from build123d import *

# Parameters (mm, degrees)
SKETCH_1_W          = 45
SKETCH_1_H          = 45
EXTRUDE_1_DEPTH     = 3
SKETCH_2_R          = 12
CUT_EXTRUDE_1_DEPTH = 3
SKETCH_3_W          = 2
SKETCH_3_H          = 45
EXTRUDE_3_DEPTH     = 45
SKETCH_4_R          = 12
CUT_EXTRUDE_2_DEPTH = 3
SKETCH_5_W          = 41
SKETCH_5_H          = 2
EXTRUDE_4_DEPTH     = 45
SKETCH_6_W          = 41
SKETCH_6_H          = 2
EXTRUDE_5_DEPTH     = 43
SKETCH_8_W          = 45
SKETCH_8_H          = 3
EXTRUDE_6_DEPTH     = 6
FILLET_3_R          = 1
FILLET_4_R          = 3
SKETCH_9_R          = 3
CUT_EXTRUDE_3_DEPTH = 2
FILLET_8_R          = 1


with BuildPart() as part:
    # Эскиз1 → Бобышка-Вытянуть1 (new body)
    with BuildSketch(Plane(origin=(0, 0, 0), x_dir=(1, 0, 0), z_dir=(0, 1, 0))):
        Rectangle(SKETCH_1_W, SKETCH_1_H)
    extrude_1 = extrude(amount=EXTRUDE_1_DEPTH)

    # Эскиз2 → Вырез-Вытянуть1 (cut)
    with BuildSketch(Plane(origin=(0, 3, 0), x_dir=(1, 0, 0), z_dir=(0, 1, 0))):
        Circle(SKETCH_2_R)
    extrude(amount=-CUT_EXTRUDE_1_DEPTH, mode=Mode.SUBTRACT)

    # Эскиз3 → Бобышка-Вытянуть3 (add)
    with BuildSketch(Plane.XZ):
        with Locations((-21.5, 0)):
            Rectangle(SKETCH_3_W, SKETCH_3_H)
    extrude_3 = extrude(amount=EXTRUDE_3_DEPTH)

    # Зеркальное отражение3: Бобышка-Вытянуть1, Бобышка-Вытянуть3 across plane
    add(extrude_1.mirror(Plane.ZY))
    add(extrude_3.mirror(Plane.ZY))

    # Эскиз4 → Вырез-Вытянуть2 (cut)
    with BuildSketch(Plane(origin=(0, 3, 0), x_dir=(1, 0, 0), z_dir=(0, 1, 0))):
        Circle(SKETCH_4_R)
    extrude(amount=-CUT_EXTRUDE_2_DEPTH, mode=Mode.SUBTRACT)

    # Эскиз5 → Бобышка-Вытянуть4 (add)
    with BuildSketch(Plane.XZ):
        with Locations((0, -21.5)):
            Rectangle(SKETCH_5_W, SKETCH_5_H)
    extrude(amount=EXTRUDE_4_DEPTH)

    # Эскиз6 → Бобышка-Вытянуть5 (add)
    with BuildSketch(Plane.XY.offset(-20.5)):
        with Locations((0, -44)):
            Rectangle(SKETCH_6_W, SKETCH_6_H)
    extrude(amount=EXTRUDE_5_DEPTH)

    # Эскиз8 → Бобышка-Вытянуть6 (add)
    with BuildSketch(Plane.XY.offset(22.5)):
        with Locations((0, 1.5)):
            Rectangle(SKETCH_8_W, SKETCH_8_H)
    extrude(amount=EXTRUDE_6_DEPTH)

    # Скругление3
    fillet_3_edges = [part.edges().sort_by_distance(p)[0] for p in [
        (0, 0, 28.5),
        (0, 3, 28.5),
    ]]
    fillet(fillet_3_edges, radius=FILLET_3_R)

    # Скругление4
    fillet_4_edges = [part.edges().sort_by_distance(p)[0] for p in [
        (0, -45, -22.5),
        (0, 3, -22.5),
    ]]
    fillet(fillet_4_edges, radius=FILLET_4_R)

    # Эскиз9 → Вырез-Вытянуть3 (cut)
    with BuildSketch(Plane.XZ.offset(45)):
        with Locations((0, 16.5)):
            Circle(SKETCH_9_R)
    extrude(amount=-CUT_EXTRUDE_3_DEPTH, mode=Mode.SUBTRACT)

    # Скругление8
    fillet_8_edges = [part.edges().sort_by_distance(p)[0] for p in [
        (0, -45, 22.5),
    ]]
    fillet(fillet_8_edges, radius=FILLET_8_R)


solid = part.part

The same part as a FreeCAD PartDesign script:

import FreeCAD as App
import Part
import Sketcher

V = App.Vector
Q = App.Units.Quantity


def edges_at(feature, points):
    """Names of the edges that pass closest to the given points."""
    edges = feature.Shape.Edges
    near = lambda p: min(range(len(edges)), key=lambda i: edges[i].distToShape(Part.Vertex(*p))[0])
    return sorted({f"Edge{near(p) + 1}" for p in points})

doc = App.newDocument("Part")
body = doc.addObject("PartDesign::Body", "Body")

# Sketch on XZ plane
sketch1 = body.newObject("Sketcher::SketchObject", "Sketch")
sketch1.AttachmentSupport = (doc.getObject("XZ_Plane"), [""])
sketch1.MapMode = "FlatFace"
sketch1.addGeometry([
    Part.LineSegment(V(-22, -22, 0), V(-22, 22, 0)),
    Part.LineSegment(V(-22, 22, 0), V(22, 22, 0)),
    Part.LineSegment(V(22, 22, 0), V(22, -22, 0)),
    Part.LineSegment(V(22, -22, 0), V(-22, -22, 0)),
], False)
sketch1.addConstraint([
    Sketcher.Constraint("Coincident", 0, 2, 1, 1),
    Sketcher.Constraint("Coincident", 1, 2, 2, 1),
    Sketcher.Constraint("Coincident", 2, 2, 3, 1),
    Sketcher.Constraint("Coincident", 3, 2, 0, 1),
    Sketcher.Constraint("Vertical", 0),
    Sketcher.Constraint("Horizontal", 1),
    Sketcher.Constraint("Vertical", 2),
    Sketcher.Constraint("Horizontal", 3),
    Sketcher.Constraint("Symmetric", 0, 2, 2, 2, -1, 1),
    Sketcher.Constraint("Equal", 3, 0),
    Sketcher.Constraint("DistanceX", 1, 1, 1, 2, Q("45 mm")),
])
pad1 = body.newObject("PartDesign::Pad", "Pad")
pad1.Profile = sketch1
pad1.Length = 3
pad1.Reversed = True

# Sketch on XZ plane
sketch2 = body.newObject("Sketcher::SketchObject", "Sketch001")
sketch2.AttachmentSupport = (doc.getObject("XZ_Plane"), [""])
sketch2.MapMode = "FlatFace"
sketch2.AttachmentOffset = App.Placement(V(0, 0, -3), App.Rotation())
sketch2.addGeometry(Part.Circle(V(0, 0, 0), V(0, 0, 1), 12), False)
sketch2.addConstraint([
    Sketcher.Constraint("Coincident", 0, 3, -1, 1),
    Sketcher.Constraint("Diameter", 0, Q("24 mm")),
])
pocket1 = body.newObject("PartDesign::Pocket", "Pocket")
pocket1.Profile = sketch2
pocket1.Length = 3
pocket1.Reversed = True

# Sketch on XZ plane
sketch3 = body.newObject("Sketcher::SketchObject", "Sketch002")
sketch3.AttachmentSupport = (doc.getObject("XZ_Plane"), [""])
sketch3.MapMode = "FlatFace"
sketch3.addGeometry([
    Part.LineSegment(V(-22.5, 22.5, 0), V(-22.5, -22.5, 0)),
    Part.LineSegment(V(-22.5, -22.5, 0), V(-20.5, -22.5, 0)),
    Part.LineSegment(V(-20.5, -22.5, 0), V(-20.5, 22.5, 0)),
    Part.LineSegment(V(-20.5, 22.5, 0), V(-22.5, 22.5, 0)),
], False)
sketch3.addConstraint([
    Sketcher.Constraint("Coincident", 0, 2, 1, 1),
    Sketcher.Constraint("Coincident", 1, 2, 2, 1),
    Sketcher.Constraint("Coincident", 2, 2, 3, 1),
    Sketcher.Constraint("Coincident", 3, 2, 0, 1),
    Sketcher.Constraint("Vertical", 0),
    Sketcher.Constraint("Horizontal", 1),
    Sketcher.Constraint("Vertical", 2),
    Sketcher.Constraint("Horizontal", 3),
    Sketcher.Constraint("DistanceX", 1, 1, 1, 2, Q("2 mm")),
    Sketcher.Constraint("DistanceY", 0, 2, 0, 1, Q("45 mm")),
    Sketcher.Constraint("DistanceX", 0, 2, -1, 1, Q("22.5 mm")),
    Sketcher.Constraint("DistanceY", 0, 2, -1, 1, Q("22.5 mm")),
])
pad2 = body.newObject("PartDesign::Pad", "Pad001")
pad2.Profile = sketch3
pad2.Length = 45
doc.recompute()

mirrored = body.newObject("PartDesign::Mirrored", "Mirrored")
mirrored.Originals = [pad1, pad2]
mirrored.MirrorPlane = (doc.getObject("YZ_Plane"), [""])
body.Tip = mirrored

# Sketch on XZ plane
sketch4 = body.newObject("Sketcher::SketchObject", "Sketch003")
sketch4.AttachmentSupport = (doc.getObject("XZ_Plane"), [""])
sketch4.MapMode = "FlatFace"
sketch4.AttachmentOffset = App.Placement(V(0, 0, -3), App.Rotation())
sketch4.addGeometry(Part.Circle(V(0, 0, 0), V(0, 0, 1), 12), False)
sketch4.addConstraint([
    Sketcher.Constraint("Coincident", 0, 3, -1, 1),
    Sketcher.Constraint("Diameter", 0, Q("24 mm")),
])
pocket2 = body.newObject("PartDesign::Pocket", "Pocket001")
pocket2.Profile = sketch4
pocket2.Length = 3
pocket2.Reversed = True

# Sketch on XZ plane
sketch5 = body.newObject("Sketcher::SketchObject", "Sketch004")
sketch5.AttachmentSupport = (doc.getObject("XZ_Plane"), [""])
sketch5.MapMode = "FlatFace"
sketch5.addGeometry([
    Part.LineSegment(V(-20.5, -20.5, 0), V(-20.5, -22.5, 0)),
    Part.LineSegment(V(-20.5, -22.5, 0), V(20.5, -22.5, 0)),
    Part.LineSegment(V(20.5, -22.5, 0), V(20.5, -20.5, 0)),
    Part.LineSegment(V(20.5, -20.5, 0), V(-20.5, -20.5, 0)),
], False)
sketch5.addConstraint([
    Sketcher.Constraint("Coincident", 0, 2, 1, 1),
    Sketcher.Constraint("Coincident", 1, 2, 2, 1),
    Sketcher.Constraint("Coincident", 2, 2, 3, 1),
    Sketcher.Constraint("Coincident", 3, 2, 0, 1),
    Sketcher.Constraint("Vertical", 0),
    Sketcher.Constraint("Horizontal", 1),
    Sketcher.Constraint("Vertical", 2),
    Sketcher.Constraint("Horizontal", 3),
    Sketcher.Constraint("DistanceX", 1, 1, 1, 2, Q("41 mm")),
    Sketcher.Constraint("DistanceY", 0, 2, 0, 1, Q("2 mm")),
    Sketcher.Constraint("DistanceX", 0, 2, -1, 1, Q("20.5 mm")),
    Sketcher.Constraint("DistanceY", 0, 2, -1, 1, Q("22.5 mm")),
])
pad3 = body.newObject("PartDesign::Pad", "Pad002")
pad3.Profile = sketch5
pad3.Length = 45

# Sketch on XY plane
sketch6 = body.newObject("Sketcher::SketchObject", "Sketch005")
sketch6.AttachmentSupport = (doc.getObject("XY_Plane"), [""])
sketch6.MapMode = "FlatFace"
sketch6.AttachmentOffset = App.Placement(V(0, 0, -20.5), App.Rotation())
sketch6.addGeometry([
    Part.LineSegment(V(-20.5, -43, 0), V(-20.5, -45, 0)),
    Part.LineSegment(V(-20.5, -45, 0), V(20.5, -45, 0)),
    Part.LineSegment(V(20.5, -45, 0), V(20.5, -43, 0)),
    Part.LineSegment(V(20.5, -43, 0), V(-20.5, -43, 0)),
], False)
sketch6.addConstraint([
    Sketcher.Constraint("Coincident", 0, 2, 1, 1),
    Sketcher.Constraint("Coincident", 1, 2, 2, 1),
    Sketcher.Constraint("Coincident", 2, 2, 3, 1),
    Sketcher.Constraint("Coincident", 3, 2, 0, 1),
    Sketcher.Constraint("Vertical", 0),
    Sketcher.Constraint("Horizontal", 1),
    Sketcher.Constraint("Vertical", 2),
    Sketcher.Constraint("Horizontal", 3),
    Sketcher.Constraint("DistanceX", 1, 1, 1, 2, Q("41 mm")),
    Sketcher.Constraint("DistanceY", 0, 2, 0, 1, Q("2 mm")),
    Sketcher.Constraint("DistanceY", 0, 2, -1, 1, Q("45 mm")),
    Sketcher.Constraint("DistanceX", 0, 2, -1, 1, Q("20.5 mm")),
])
pad4 = body.newObject("PartDesign::Pad", "Pad003")
pad4.Profile = sketch6
pad4.Length = 43

# Sketch on XY plane
sketch7 = body.newObject("Sketcher::SketchObject", "Sketch006")
sketch7.AttachmentSupport = (doc.getObject("XY_Plane"), [""])
sketch7.MapMode = "FlatFace"
sketch7.AttachmentOffset = App.Placement(V(0, 0, 22.5), App.Rotation())
sketch7.addGeometry([
    Part.LineSegment(V(-22.5, 3, 0), V(-22.5, 0, 0)),
    Part.LineSegment(V(-22.5, 0, 0), V(22.5, 0, 0)),
    Part.LineSegment(V(22.5, 0, 0), V(22.5, 3, 0)),
    Part.LineSegment(V(22.5, 3, 0), V(-22.5, 3, 0)),
], False)
sketch7.addConstraint([
    Sketcher.Constraint("Coincident", 0, 2, 1, 1),
    Sketcher.Constraint("Coincident", 1, 2, 2, 1),
    Sketcher.Constraint("Coincident", 2, 2, 3, 1),
    Sketcher.Constraint("Coincident", 3, 2, 0, 1),
    Sketcher.Constraint("Vertical", 0),
    Sketcher.Constraint("Horizontal", 1),
    Sketcher.Constraint("Vertical", 2),
    Sketcher.Constraint("Horizontal", 3),
    Sketcher.Constraint("Symmetric", 0, 2, 1, 2, -1, 1),
    Sketcher.Constraint("DistanceX", 1, 1, 1, 2, Q("45 mm")),
    Sketcher.Constraint("DistanceY", 0, 2, 0, 1, Q("3 mm")),
])
pad5 = body.newObject("PartDesign::Pad", "Pad004")
pad5.Profile = sketch7
pad5.Length = 6
doc.recompute()

fillet = body.newObject("PartDesign::Fillet", "Fillet")
fillet.Base = (pad5, edges_at(pad5, [(0, 0, 28.5), (0, 3, 28.5)]))
fillet.Radius = 1
doc.recompute()

fillet2 = body.newObject("PartDesign::Fillet", "Fillet001")
fillet2.Base = (fillet, edges_at(fillet, [(0, -45, -22.5), (0, 3, -22.5)]))
fillet2.Radius = 3

# Sketch on XZ plane
sketch8 = body.newObject("Sketcher::SketchObject", "Sketch007")
sketch8.AttachmentSupport = (doc.getObject("XZ_Plane"), [""])
sketch8.MapMode = "FlatFace"
sketch8.AttachmentOffset = App.Placement(V(0, 0, 45), App.Rotation())
sketch8.addGeometry(Part.Circle(V(0, 16.5, 0), V(0, 0, 1), 3), False)
sketch8.addConstraint([
    Sketcher.Constraint("PointOnObject", 0, 3, -2),
    Sketcher.Constraint("Diameter", 0, Q("6 mm")),
    Sketcher.Constraint("DistanceY", -1, 1, 0, 3, Q("16.5 mm")),
])
pocket3 = body.newObject("PartDesign::Pocket", "Pocket002")
pocket3.Profile = sketch8
pocket3.Length = 2
doc.recompute()

fillet3 = body.newObject("PartDesign::Fillet", "Fillet002")
fillet3.Base = (pocket3, edges_at(pocket3, [(0, -45, 22.5)]))
fillet3.Radius = 1

doc.recompute()
